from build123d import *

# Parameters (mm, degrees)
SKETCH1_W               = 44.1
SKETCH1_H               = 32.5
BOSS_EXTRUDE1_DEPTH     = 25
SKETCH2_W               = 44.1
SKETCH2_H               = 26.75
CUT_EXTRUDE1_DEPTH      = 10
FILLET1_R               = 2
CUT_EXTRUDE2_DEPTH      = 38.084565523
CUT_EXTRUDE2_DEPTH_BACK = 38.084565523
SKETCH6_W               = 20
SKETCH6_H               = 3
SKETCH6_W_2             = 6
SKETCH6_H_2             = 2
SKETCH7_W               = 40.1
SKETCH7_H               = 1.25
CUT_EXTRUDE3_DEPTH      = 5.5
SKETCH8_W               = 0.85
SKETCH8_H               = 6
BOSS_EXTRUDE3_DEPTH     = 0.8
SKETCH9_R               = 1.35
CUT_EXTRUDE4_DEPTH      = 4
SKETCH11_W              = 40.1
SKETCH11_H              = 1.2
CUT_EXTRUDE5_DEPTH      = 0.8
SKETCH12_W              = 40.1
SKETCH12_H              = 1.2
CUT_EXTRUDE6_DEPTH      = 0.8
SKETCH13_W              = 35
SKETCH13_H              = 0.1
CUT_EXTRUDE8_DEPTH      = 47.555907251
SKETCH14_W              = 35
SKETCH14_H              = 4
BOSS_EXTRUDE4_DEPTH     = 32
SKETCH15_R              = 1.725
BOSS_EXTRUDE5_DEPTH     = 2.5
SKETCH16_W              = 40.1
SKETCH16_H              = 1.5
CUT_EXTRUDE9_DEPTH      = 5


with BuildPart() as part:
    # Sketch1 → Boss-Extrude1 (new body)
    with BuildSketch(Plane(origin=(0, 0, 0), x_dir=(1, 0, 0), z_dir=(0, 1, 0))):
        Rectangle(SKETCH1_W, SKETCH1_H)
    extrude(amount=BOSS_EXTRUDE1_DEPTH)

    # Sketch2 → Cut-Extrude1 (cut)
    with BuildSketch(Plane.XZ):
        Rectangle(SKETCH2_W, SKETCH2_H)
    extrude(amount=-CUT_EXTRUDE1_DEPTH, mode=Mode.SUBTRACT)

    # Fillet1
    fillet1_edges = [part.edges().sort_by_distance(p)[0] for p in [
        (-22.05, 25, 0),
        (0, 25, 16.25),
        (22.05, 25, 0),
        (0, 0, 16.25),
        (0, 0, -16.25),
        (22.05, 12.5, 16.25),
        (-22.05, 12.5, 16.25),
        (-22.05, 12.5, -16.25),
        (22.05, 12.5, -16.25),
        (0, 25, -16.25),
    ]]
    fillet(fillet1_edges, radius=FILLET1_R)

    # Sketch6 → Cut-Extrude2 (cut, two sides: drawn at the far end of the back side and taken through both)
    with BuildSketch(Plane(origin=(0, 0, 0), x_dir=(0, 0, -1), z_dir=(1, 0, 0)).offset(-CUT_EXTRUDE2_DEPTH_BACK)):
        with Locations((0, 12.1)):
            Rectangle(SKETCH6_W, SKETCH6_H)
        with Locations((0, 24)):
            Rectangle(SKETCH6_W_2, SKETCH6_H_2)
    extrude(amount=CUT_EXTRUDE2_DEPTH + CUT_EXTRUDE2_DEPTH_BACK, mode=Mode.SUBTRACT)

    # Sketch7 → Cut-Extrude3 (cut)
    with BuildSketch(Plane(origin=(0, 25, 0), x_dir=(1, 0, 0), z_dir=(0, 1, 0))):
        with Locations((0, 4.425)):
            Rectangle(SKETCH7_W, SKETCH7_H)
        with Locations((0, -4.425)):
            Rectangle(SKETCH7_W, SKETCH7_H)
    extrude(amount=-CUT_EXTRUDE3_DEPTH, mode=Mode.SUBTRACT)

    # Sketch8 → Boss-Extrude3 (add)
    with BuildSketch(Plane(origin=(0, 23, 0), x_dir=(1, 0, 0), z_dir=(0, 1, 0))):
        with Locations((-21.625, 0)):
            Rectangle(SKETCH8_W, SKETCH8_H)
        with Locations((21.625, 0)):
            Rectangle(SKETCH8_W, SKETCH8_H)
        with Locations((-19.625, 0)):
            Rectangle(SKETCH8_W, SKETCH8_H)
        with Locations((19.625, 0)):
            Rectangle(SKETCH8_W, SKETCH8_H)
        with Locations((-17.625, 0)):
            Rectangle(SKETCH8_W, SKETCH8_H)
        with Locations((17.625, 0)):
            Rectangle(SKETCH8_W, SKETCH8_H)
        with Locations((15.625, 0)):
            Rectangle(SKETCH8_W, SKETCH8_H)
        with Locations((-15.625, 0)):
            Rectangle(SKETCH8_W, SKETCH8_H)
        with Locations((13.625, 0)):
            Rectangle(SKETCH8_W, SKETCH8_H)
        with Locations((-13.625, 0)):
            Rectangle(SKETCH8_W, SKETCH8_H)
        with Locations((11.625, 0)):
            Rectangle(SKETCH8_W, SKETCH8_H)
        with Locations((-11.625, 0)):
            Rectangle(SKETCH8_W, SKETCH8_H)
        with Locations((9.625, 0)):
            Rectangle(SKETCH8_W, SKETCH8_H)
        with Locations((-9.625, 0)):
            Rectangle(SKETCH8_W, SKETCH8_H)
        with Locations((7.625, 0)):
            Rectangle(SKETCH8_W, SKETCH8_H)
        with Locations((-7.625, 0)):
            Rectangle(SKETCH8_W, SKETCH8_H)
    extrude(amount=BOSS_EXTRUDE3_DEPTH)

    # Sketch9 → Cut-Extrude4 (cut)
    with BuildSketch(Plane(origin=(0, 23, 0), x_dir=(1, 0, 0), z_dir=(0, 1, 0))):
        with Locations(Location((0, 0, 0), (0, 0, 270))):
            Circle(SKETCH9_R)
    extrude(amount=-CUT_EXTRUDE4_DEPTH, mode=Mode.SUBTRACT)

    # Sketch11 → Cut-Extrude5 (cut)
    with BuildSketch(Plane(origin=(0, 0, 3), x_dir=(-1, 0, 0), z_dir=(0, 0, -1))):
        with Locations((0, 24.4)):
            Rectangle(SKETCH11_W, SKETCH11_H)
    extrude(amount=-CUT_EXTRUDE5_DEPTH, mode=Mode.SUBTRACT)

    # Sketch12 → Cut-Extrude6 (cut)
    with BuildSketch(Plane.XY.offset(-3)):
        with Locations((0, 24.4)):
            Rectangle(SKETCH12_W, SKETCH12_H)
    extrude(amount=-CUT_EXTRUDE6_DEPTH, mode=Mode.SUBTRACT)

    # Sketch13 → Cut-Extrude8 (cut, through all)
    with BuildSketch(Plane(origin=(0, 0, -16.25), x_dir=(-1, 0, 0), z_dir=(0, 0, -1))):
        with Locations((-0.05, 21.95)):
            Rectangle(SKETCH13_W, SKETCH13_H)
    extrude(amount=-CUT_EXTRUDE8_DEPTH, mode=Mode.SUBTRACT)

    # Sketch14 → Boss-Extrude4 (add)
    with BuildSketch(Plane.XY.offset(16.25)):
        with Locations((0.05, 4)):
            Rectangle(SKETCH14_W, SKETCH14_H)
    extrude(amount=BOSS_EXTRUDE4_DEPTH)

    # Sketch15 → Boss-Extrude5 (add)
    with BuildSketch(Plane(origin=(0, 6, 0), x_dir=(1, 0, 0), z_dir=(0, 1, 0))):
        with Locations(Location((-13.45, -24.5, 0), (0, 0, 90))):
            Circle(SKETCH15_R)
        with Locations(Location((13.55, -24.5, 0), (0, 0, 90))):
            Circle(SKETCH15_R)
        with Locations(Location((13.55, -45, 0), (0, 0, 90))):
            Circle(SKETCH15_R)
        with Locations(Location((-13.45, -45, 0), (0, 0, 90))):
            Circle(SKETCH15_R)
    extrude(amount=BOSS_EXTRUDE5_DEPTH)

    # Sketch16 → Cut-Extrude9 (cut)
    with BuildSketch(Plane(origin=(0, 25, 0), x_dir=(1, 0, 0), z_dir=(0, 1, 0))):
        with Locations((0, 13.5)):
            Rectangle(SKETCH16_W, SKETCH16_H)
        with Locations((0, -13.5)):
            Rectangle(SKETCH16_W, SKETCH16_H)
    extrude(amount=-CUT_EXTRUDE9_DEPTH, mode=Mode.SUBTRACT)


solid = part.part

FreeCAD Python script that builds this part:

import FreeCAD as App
import Part
import Sketcher

V = App.Vector


def edges_at(feature, points):
    """Names of the edges that pass closest to the given points."""
    edges = feature.Shape.Edges
    near = lambda p: min(range(len(edges)), key=lambda i: edges[i].distToShape(Part.Vertex(*p))[0])
    return sorted({f"Edge{near(p) + 1}" for p in points})


def add_polygon(sketch, points):
    """Adds a closed chain of lines whose ends are joined by coincident constraints."""
    first, n = sketch.GeometryCount, len(points)
    for a, b in zip(points, points[1:] + points[:1]):
        sketch.addGeometry(Part.LineSegment(App.Vector(*a, 0), App.Vector(*b, 0)), False)
    for i in range(n):
        sketch.addConstraint(Sketcher.Constraint("Coincident", first + i, 2, first + (i + 1) % n, 1))

doc = App.newDocument("Part")
params = doc.addObject("Spreadsheet::Sheet", "Params")
for row, (alias, value) in enumerate([
    ("sketch1_width", "44.1 mm"),
    ("sketch1_height", "32.5 mm"),
    ("pad1_length", "25 mm"),
    ("sketch2_width", "44.1 mm"),
    ("sketch2_height", "26.75 mm"),
    ("pocket1_length", "10 mm"),
    ("fillet_radius", "2 mm"),
    ("sketch3_width", "3 mm"),
    ("sketch3_width2", "2 mm"),
    ("sketch3_height", "20 mm"),
    ("sketch3_height2", "6 mm"),
    ("sketch4_width", "40.1 mm"),
    ("sketch4_height", "1.25 mm"),
    ("pocket3_length", "5.5 mm"),
    ("sketch5_height", "6 mm"),
    ("sketch5_width", "0.85 mm"),
    ("pad2_length", "0.8 mm"),
    ("sketch6_diameter", "2.7 mm"),
    ("pocket4_length", "4 mm"),
    ("sketch7_width", "40.1 mm"),
    ("sketch7_height", "1.2 mm"),
    ("pocket5_length", "0.8 mm"),
    ("sketch8_width", "40.1 mm"),
    ("sketch8_height", "1.2 mm"),
    ("pocket6_length", "0.8 mm"),
    ("sketch9_width", "35 mm"),
    ("sketch9_height", "0.1 mm"),
    ("sketch10_width", "35 mm"),
    ("sketch10_height", "4 mm"),
    ("pad3_length", "32 mm"),
    ("sketch11_diameter", "3.45 mm"),
    ("pad4_length", "2.5 mm"),
    ("sketch12_width", "40.1 mm"),
    ("sketch12_height", "1.5 mm"),
    ("pocket8_length", "5 mm"),
], start=1):
    params.set(f"A{row}", alias)
    params.set(f"B{row}", "=" + value)
    params.setAlias(f"B{row}", alias)

body = doc.addObject("PartDesign::Body", "Body")

sketch1 = doc.addObject("Sketcher::SketchObject", "Sketch")
body.addObject(sketch1)
sketch1.AttachmentSupport = (doc.XZ_Plane, [""])
sketch1.MapMode = "FlatFace"
add_polygon(sketch1, [(-22, -16), (-22, 16), (22, 16), (22, -16)])
sketch1.addConstraint(Sketcher.Constraint("Vertical", 0))
sketch1.addConstraint(Sketcher.Constraint("Horizontal", 1))
sketch1.addConstraint(Sketcher.Constraint("Vertical", 2))
sketch1.addConstraint(Sketcher.Constraint("Horizontal", 3))
sketch1.addConstraint(Sketcher.Constraint("Symmetric", 0, 2, 2, 2, -1, 1))
sketch1.addConstraint(Sketcher.Constraint("DistanceX", 1, 1, 1, 2, 44.1))
sketch1.addConstraint(Sketcher.Constraint("DistanceY", 0, 1, 0, 2, 32.5))
sketch1.setExpression("Constraints[9]", "Params.sketch1_width")
sketch1.setExpression("Constraints[10]", "Params.sketch1_height")
pad1 = doc.addObject("PartDesign::Pad", "Pad")
body.addObject(pad1)
pad1.Profile = sketch1
pad1.setExpression("Length", "Params.pad1_length")
pad1.Reversed = True

sketch2 = doc.addObject("Sketcher::SketchObject", "Sketch001")
body.addObject(sketch2)
sketch2.AttachmentSupport = (doc.XZ_Plane, [""])
sketch2.MapMode = "FlatFace"
add_polygon(sketch2, [(-22, 13), (-22, -13), (22, -13), (22, 13)])
sketch2.addConstraint(Sketcher.Constraint("Vertical", 0))
sketch2.addConstraint(Sketcher.Constraint("Horizontal", 1))
sketch2.addConstraint(Sketcher.Constraint("Vertical", 2))
sketch2.addConstraint(Sketcher.Constraint("Horizontal", 3))
sketch2.addConstraint(Sketcher.Constraint("Symmetric", 0, 2, 2, 2, -1, 1))
sketch2.addConstraint(Sketcher.Constraint("DistanceX", 1, 1, 1, 2, 44.1))
sketch2.addConstraint(Sketcher.Constraint("DistanceY", 0, 2, 0, 1, 26.75))
sketch2.setExpression("Constraints[9]", "Params.sketch2_width")
sketch2.setExpression("Constraints[10]", "Params.sketch2_height")
pocket1 = doc.addObject("PartDesign::Pocket", "Pocket")
body.addObject(pocket1)
pocket1.Profile = sketch2
pocket1.setExpression("Length", "Params.pocket1_length")
doc.recompute()

fillet = doc.addObject("PartDesign::Fillet", "Fillet")
body.addObject(fillet)
fillet.Base = (pocket1, edges_at(pocket1, [
    (-22.05, 25, 0),
    (0, 25, 16.25),
    (22.05, 25, 0),
    (0, 0, 16.25),
    (0, 0, -16.25),
    (22.05, 12.5, 16.25),
    (-22.05, 12.5, 16.25),
    (-22.05, 12.5, -16.25),
    (22.05, 12.5, -16.25),
    (0, 25, -16.25),
]))
fillet.setExpression("Radius", "Params.fillet_radius")

sketch3 = doc.addObject("Sketcher::SketchObject", "Sketch002")
body.addObject(sketch3)
sketch3.AttachmentSupport = (doc.YZ_Plane, [""])
sketch3.MapMode = "FlatFace"
add_polygon(sketch3, [(13.6, 10), (10.6, 10), (10.6, -10), (13.6, -10)])
add_polygon(sketch3, [(25, 3), (23, 3), (23, -3), (25, -3)])
sketch3.addConstraint(Sketcher.Constraint("Horizontal", 0))
sketch3.addConstraint(Sketcher.Constraint("Vertical", 1))
sketch3.addConstraint(Sketcher.Constraint("Horizontal", 2))
sketch3.addConstraint(Sketcher.Constraint("Vertical", 3))
sketch3.addConstraint(Sketcher.Constraint("Horizontal", 4))
sketch3.addConstraint(Sketcher.Constraint("Vertical", 5))
sketch3.addConstraint(Sketcher.Constraint("Horizontal", 6))
sketch3.addConstraint(Sketcher.Constraint("Vertical", 7))
sketch3.addConstraint(Sketcher.Constraint("DistanceX", 0, 2, 0, 1, 3.0))
sketch3.addConstraint(Sketcher.Constraint("DistanceX", 4, 2, 4, 1, 2.0))
sketch3.addConstraint(Sketcher.Constraint("DistanceY", 1, 2, 1, 1, 20.0))
sketch3.addConstraint(Sketcher.Constraint("DistanceY", 5, 2, 5, 1, 6.0))
sketch3.addConstraint(Sketcher.Constraint("DistanceY", -1, 1, 0, 2, 10.0))
sketch3.addConstraint(Sketcher.Constraint("DistanceX", -1, 1, 4, 2, 23.0))
sketch3.addConstraint(Sketcher.Constraint("DistanceY", -1, 1, 4, 2, 3.0))
sketch3.addConstraint(Sketcher.Constraint("DistanceX", -1, 1, 0, 2, 10.6))
sketch3.setExpression("Constraints[16]", "Params.sketch3_width")
sketch3.setExpression("Constraints[17]", "Params.sketch3_width2")
sketch3.setExpression("Constraints[18]", "Params.sketch3_height")
sketch3.setExpression("Constraints[19]", "Params.sketch3_height2")
pocket2 = doc.addObject("PartDesign::Pocket", "Pocket001")
body.addObject(pocket2)
pocket2.Profile = sketch3
pocket2.Type = "ThroughAll"
pocket2.Midplane = True

sketch4 = doc.addObject("Sketcher::SketchObject", "Sketch003")
body.addObject(sketch4)
sketch4.AttachmentSupport = (doc.XZ_Plane, [""])
sketch4.MapMode = "FlatFace"
sketch4.AttachmentOffset = App.Placement(V(0, 0, -25), App.Rotation())
add_polygon(sketch4, [(-20.1, -5), (-20.1, -3.8), (20.1, -3.8), (20.1, -5)])
add_polygon(sketch4, [(-20.1, 3.8), (-20.1, 5), (20.1, 5), (20.1, 3.8)])
sketch4.addConstraint(Sketcher.Constraint("Vertical", 0))
sketch4.addConstraint(Sketcher.Constraint("Horizontal", 1))
sketch4.addConstraint(Sketcher.Constraint("Vertical", 2))
sketch4.addConstraint(Sketcher.Constraint("Horizontal", 3))
sketch4.addConstraint(Sketcher.Constraint("Vertical", 4))
sketch4.addConstraint(Sketcher.Constraint("Horizontal", 5))
sketch4.addConstraint(Sketcher.Constraint("Vertical", 6))
sketch4.addConstraint(Sketcher.Constraint("Horizontal", 7))
sketch4.addConstraint(Sketcher.Constraint("Symmetric", 2, 2, 4, 2, -1, 1))
sketch4.addConstraint(Sketcher.Constraint("Symmetric", 0, 2, 6, 2, -1, 1))
sketch4.addConstraint(Sketcher.Constraint("Vertical", 3, 2, 4, 2))
sketch4.addConstraint(Sketcher.Constraint("DistanceX", 1, 1, 1, 2, 40.1))
sketch4.addConstraint(Sketcher.Constraint("DistanceY", 0, 1, 0, 2, 1.25))
sketch4.addConstraint(Sketcher.Constraint("DistanceY", 0, 2, -1, 1, 3.8))
sketch4.setExpression("Constraints[19]", "Params.sketch4_width")
sketch4.setExpression("Constraints[20]", "Params.sketch4_height")
pocket3 = doc.addObject("PartDesign::Pocket", "Pocket002")
body.addObject(pocket3)
pocket3.Profile = sketch4
pocket3.setExpression("Length", "Params.pocket3_length")
pocket3.Reversed = True

sketch5 = doc.addObject("Sketcher::SketchObject", "Sketch004")
body.addObject(sketch5)
sketch5.AttachmentSupport = (doc.XZ_Plane, [""])
sketch5.MapMode = "FlatFace"
sketch5.AttachmentOffset = App.Placement(V(0, 0, -23), App.Rotation())
add_polygon(sketch5, [(-22.1, -3), (-22.1, 3), (-21.2, 3), (-21.2, -3)])
add_polygon(sketch5, [(21.2, -3), (21.2, 3), (22.1, 3), (22.1, -3)])
add_polygon(sketch5, [(-20.1, -3), (-20.1, 3), (-19.2, 3), (-19.2, -3)])
add_polygon(sketch5, [(19.2, -3), (19.2, 3), (20.1, 3), (20.1, -3)])
add_polygon(sketch5, [(-18.1, -3), (-18.1, 3), (-17.2, 3), (-17.2, -3)])
add_polygon(sketch5, [(17.2, -3), (17.2, 3), (18.1, 3), (18.1, -3)])
add_polygon(sketch5, [(15.2, -3), (15.2, 3), (16.1, 3), (16.1, -3)])
add_polygon(sketch5, [(-16.1, -3), (-16.1, 3), (-15.2, 3), (-15.2, -3)])
add_polygon(sketch5, [(13.2, -3), (13.2, 3), (14.1, 3), (14.1, -3)])
add_polygon(sketch5, [(-14.1, -3), (-14.1, 3), (-13.2, 3), (-13.2, -3)])
add_polygon(sketch5, [(11.2, -3), (11.2, 3), (12.1, 3), (12.1, -3)])
add_polygon(sketch5, [(-12.1, -3), (-12.1, 3), (-11.2, 3), (-11.2, -3)])
add_polygon(sketch5, [(9.2, -3), (9.2, 3), (10.1, 3), (10.1, -3)])
add_polygon(sketch5, [(-10.1, -3), (-10.1, 3), (-9.2, 3), (-9.2, -3)])
add_polygon(sketch5, [(7.2, -3), (7.2, 3), (8.1, 3), (8.1, -3)])
add_polygon(sketch5, [(-8.1, -3), (-8.1, 3), (-7.2, 3), (-7.2, -3)])
sketch5.addConstraint(Sketcher.Constraint("Vertical", 0))
sketch5.addConstraint(Sketcher.Constraint("Horizontal", 1))
sketch5.addConstraint(Sketcher.Constraint("Vertical", 2))
sketch5.addConstraint(Sketcher.Constraint("Horizontal", 3))
sketch5.addConstraint(Sketcher.Constraint("Vertical", 4))
sketch5.addConstraint(Sketcher.Constraint("Horizontal", 5))
sketch5.addConstraint(Sketcher.Constraint("Vertical", 6))
sketch5.addConstraint(Sketcher.Constraint("Horizontal", 7))
sketch5.addConstraint(Sketcher.Constraint("Vertical", 8))
sketch5.addConstraint(Sketcher.Constraint("Horizontal", 9))
sketch5.addConstraint(Sketcher.Constraint("Vertical", 10))
sketch5.addConstraint(Sketcher.Constraint("Horizontal", 11))
sketch5.addConstraint(Sketcher.Constraint("Vertical", 12))
sketch5.addConstraint(Sketcher.Constraint("Horizontal", 13))
sketch5.addConstraint(Sketcher.Constraint("Vertical", 14))
sketch5.addConstraint(Sketcher.Constraint("Horizontal", 15))
sketch5.addConstraint(Sketcher.Constraint("Vertical", 16))
sketch5.addConstraint(Sketcher.Constraint("Horizontal", 17))
sketch5.addConstraint(Sketcher.Constraint("Vertical", 18))
sketch5.addConstraint(Sketcher.Constraint("Horizontal", 19))
sketch5.addConstraint(Sketcher.Constraint("Vertical", 20))
sketch5.addConstraint(Sketcher.Constraint("Horizontal", 21))
sketch5.addConstraint(Sketcher.Constraint("Vertical", 22))
sketch5.addConstraint(Sketcher.Constraint("Horizontal", 23))
sketch5.addConstraint(Sketcher.Constraint("Vertical", 24))
sketch5.addConstraint(Sketcher.Constraint("Horizontal", 25))
sketch5.addConstraint(Sketcher.Constraint("Vertical", 26))
sketch5.addConstraint(Sketcher.Constraint("Horizontal", 27))
sketch5.addConstraint(Sketcher.Constraint("Vertical", 28))
sketch5.addConstraint(Sketcher.Constraint("Horizontal", 29))
sketch5.addConstraint(Sketcher.Constraint("Vertical", 30))
sketch5.addConstraint(Sketcher.Constraint("Horizontal", 31))
sketch5.addConstraint(Sketcher.Constraint("Vertical", 32))
sketch5.addConstraint(Sketcher.Constraint("Horizontal", 33))
sketch5.addConstraint(Sketcher.Constraint("Vertical", 34))
sketch5.addConstraint(Sketcher.Constraint("Horizontal", 35))
sketch5.addConstraint(Sketcher.Constraint("Vertical", 36))
sketch5.addConstraint(Sketcher.Constraint("Horizontal", 37))
sketch5.addConstraint(Sketcher.Constraint("Vertical", 38))
sketch5.addConstraint(Sketcher.Constraint("Horizontal", 39))
sketch5.addConstraint(Sketcher.Constraint("Vertical", 40))
sketch5.addConstraint(Sketcher.Constraint("Horizontal", 41))
sketch5.addConstraint(Sketcher.Constraint("Vertical", 42))
sketch5.addConstraint(Sketcher.Constraint("Horizontal", 43))
sketch5.addConstraint(Sketcher.Constraint("Vertical", 44))
sketch5.addConstraint(Sketcher.Constraint("Horizontal", 45))
sketch5.addConstraint(Sketcher.Constraint("Vertical", 46))
sketch5.addConstraint(Sketcher.Constraint("Horizontal", 47))
sketch5.addConstraint(Sketcher.Constraint("Vertical", 48))
sketch5.addConstraint(Sketcher.Constraint("Horizontal", 49))
sketch5.addConstraint(Sketcher.Constraint("Vertical", 50))
sketch5.addConstraint(Sketcher.Constraint("Horizontal", 51))
sketch5.addConstraint(Sketcher.Constraint("Vertical", 52))
sketch5.addConstraint(Sketcher.Constraint("Horizontal", 53))
sketch5.addConstraint(Sketcher.Constraint("Vertical", 54))
sketch5.addConstraint(Sketcher.Constraint("Horizontal", 55))
sketch5.addConstraint(Sketcher.Constraint("Vertical", 56))
sketch5.addConstraint(Sketcher.Constraint("Horizontal", 57))
sketch5.addConstraint(Sketcher.Constraint("Vertical", 58))
sketch5.addConstraint(Sketcher.Constraint("Horizontal", 59))
sketch5.addConstraint(Sketcher.Constraint("Vertical", 60))
sketch5.addConstraint(Sketcher.Constraint("Horizontal", 61))
sketch5.addConstraint(Sketcher.Constraint("Vertical", 62))
sketch5.addConstraint(Sketcher.Constraint("Horizontal", 63))
sketch5.addConstraint(Sketcher.Constraint("Symmetric", 2, 2, 4, 2, -1, 1))
sketch5.addConstraint(Sketcher.Constraint("Symmetric", 0, 2, 6, 2, -1, 1))
sketch5.addConstraint(Sketcher.Constraint("Symmetric", 10, 2, 12, 2, -1, 1))
sketch5.addConstraint(Sketcher.Constraint("Symmetric", 8, 2, 14, 2, -1, 1))
sketch5.addConstraint(Sketcher.Constraint("Symmetric", 18, 2, 20, 2, -1, 1))
sketch5.addConstraint(Sketcher.Constraint("Symmetric", 16, 2, 22, 2, -1, 1))
sketch5.addConstraint(Sketcher.Constraint("Symmetric", 26, 2, 28, 2, -1, 1))
sketch5.addConstraint(Sketcher.Constraint("Symmetric", 24, 2, 30, 2, -1, 1))
sketch5.addConstraint(Sketcher.Constraint("Symmetric", 34, 2, 36, 2, -1, 1))
sketch5.addConstraint(Sketcher.Constraint("Symmetric", 32, 2, 38, 2, -1, 1))
sketch5.addConstraint(Sketcher.Constraint("Symmetric", 42, 2, 44, 2, -1, 1))
sketch5.addConstraint(Sketcher.Constraint("Symmetric", 40, 2, 46, 2, -1, 1))
sketch5.addConstraint(Sketcher.Constraint("Symmetric", 50, 2, 52, 2, -1, 1))
sketch5.addConstraint(Sketcher.Constraint("Symmetric", 48, 2, 54, 2, -1, 1))
sketch5.addConstraint(Sketcher.Constraint("Symmetric", 58, 2, 60, 2, -1, 1))
sketch5.addConstraint(Sketcher.Constraint("Symmetric", 56, 2, 62, 2, -1, 1))
sketch5.addConstraint(Sketcher.Constraint("Horizontal", 1, 2, 4, 2))
sketch5.addConstraint(Sketcher.Constraint("Horizontal", 5, 2, 8, 2))
sketch5.addConstraint(Sketcher.Constraint("Horizontal", 7, 2, 10, 2))
sketch5.addConstraint(Sketcher.Constraint("Horizontal", 13, 2, 16, 2))
sketch5.addConstraint(Sketcher.Constraint("Horizontal", 15, 2, 18, 2))
sketch5.addConstraint(Sketcher.Constraint("Horizontal", 21, 2, 24, 2))
sketch5.addConstraint(Sketcher.Constraint("Horizontal", 23, 2, 26, 2))
sketch5.addConstraint(Sketcher.Constraint("Horizontal", 29, 2, 32, 2))
sketch5.addConstraint(Sketcher.Constraint("Horizontal", 31, 2, 34, 2))
sketch5.addConstraint(Sketcher.Constraint("Horizontal", 37, 2, 40, 2))
sketch5.addConstraint(Sketcher.Constraint("Horizontal", 39, 2, 42, 2))
sketch5.addConstraint(Sketcher.Constraint("Horizontal", 45, 2, 48, 2))
sketch5.addConstraint(Sketcher.Constraint("Horizontal", 47, 2, 50, 2))
sketch5.addConstraint(Sketcher.Constraint("Horizontal", 53, 2, 56, 2))
sketch5.addConstraint(Sketcher.Constraint("Horizontal", 55, 2, 58, 2))
sketch5.addConstraint(Sketcher.Constraint("Equal", 7, 9))
sketch5.addConstraint(Sketcher.Constraint("Equal", 15, 17))
sketch5.addConstraint(Sketcher.Constraint("Equal", 23, 25))
sketch5.addConstraint(Sketcher.Constraint("Equal", 31, 33))
sketch5.addConstraint(Sketcher.Constraint("Equal", 39, 41))
sketch5.addConstraint(Sketcher.Constraint("Equal", 47, 49))
sketch5.addConstraint(Sketcher.Constraint("Equal", 55, 57))
sketch5.addConstraint(Sketcher.Constraint("DistanceY", 0, 1, 0, 2, 6.0))
sketch5.addConstraint(Sketcher.Constraint("DistanceX", 1, 1, 1, 2, 0.85))
sketch5.addConstraint(Sketcher.Constraint("DistanceX", 1, 2, -1, 1, 21.2))
sketch5.addConstraint(Sketcher.Constraint("DistanceX", 9, 2, -1, 1, 19.2))
sketch5.addConstraint(Sketcher.Constraint("DistanceX", 17, 2, -1, 1, 17.2))
sketch5.addConstraint(Sketcher.Constraint("DistanceX", -1, 1, 24, 2, 15.2))
sketch5.addConstraint(Sketcher.Constraint("DistanceX", -1, 1, 32, 2, 13.2))
sketch5.addConstraint(Sketcher.Constraint("DistanceX", -1, 1, 40, 2, 11.2))
sketch5.addConstraint(Sketcher.Constraint("DistanceX", -1, 1, 48, 2, 9.2))
sketch5.addConstraint(Sketcher.Constraint("DistanceX", -1, 1, 56, 2, 7.2))
sketch5.setExpression("Constraints[166]", "Params.sketch5_height")
sketch5.setExpression("Constraints[167]", "Params.sketch5_width")
pad2 = doc.addObject("PartDesign::Pad", "Pad001")
body.addObject(pad2)
pad2.Profile = sketch5
pad2.setExpression("Length", "Params.pad2_length")
pad2.Reversed = True

sketch6 = doc.addObject("Sketcher::SketchObject", "Sketch005")
body.addObject(sketch6)
sketch6.AttachmentSupport = (doc.XZ_Plane, [""])
sketch6.MapMode = "FlatFace"
sketch6.AttachmentOffset = App.Placement(V(0, 0, -23), App.Rotation())
sketch6.addGeometry(Part.Circle(V(0, 0, 0), V(0, 0, 1), 1.4), False)
sketch6.addConstraint(Sketcher.Constraint("Coincident", 0, 3, -1, 1))
sketch6.addConstraint(Sketcher.Constraint("Diameter", 0, 2.7))
sketch6.setExpression("Constraints[1]", "Params.sketch6_diameter")
pocket4 = doc.addObject("PartDesign::Pocket", "Pocket003")
body.addObject(pocket4)
pocket4.Profile = sketch6
pocket4.setExpression("Length", "Params.pocket4_length")
pocket4.Reversed = True

sketch7 = doc.addObject("Sketcher::SketchObject", "Sketch006")
body.addObject(sketch7)
sketch7.AttachmentSupport = (doc.XY_Plane, [""])
sketch7.MapMode = "FlatFace"
sketch7.AttachmentOffset = App.Placement(V(0, 0, 3), App.Rotation())
add_polygon(sketch7, [(20.1, 25), (20.1, 23.8), (-20.1, 23.8), (-20.1, 25)])
sketch7.addConstraint(Sketcher.Constraint("Vertical", 0))
sketch7.addConstraint(Sketcher.Constraint("Horizontal", 1))
sketch7.addConstraint(Sketcher.Constraint("Vertical", 2))
sketch7.addConstraint(Sketcher.Constraint("Horizontal", 3))
sketch7.addConstraint(Sketcher.Constraint("DistanceX", 1, 2, 1, 1, 40.1))
sketch7.addConstraint(Sketcher.Constraint("DistanceY", 0, 2, 0, 1, 1.2))
sketch7.addConstraint(Sketcher.Constraint("DistanceY", -1, 1, 2, 2, 25.0))
sketch7.addConstraint(Sketcher.Constraint("DistanceX", -1, 1, 0, 2, 20.05))
sketch7.setExpression("Constraints[8]", "Params.sketch7_width")
sketch7.setExpression("Constraints[9]", "Params.sketch7_height")
pocket5 = doc.addObject("PartDesign::Pocket", "Pocket004")
body.addObject(pocket5)
pocket5.Profile = sketch7
pocket5.setExpression("Length", "Params.pocket5_length")
pocket5.Reversed = True

sketch8 = doc.addObject("Sketcher::SketchObject", "Sketch007")
body.addObject(sketch8)
sketch8.AttachmentSupport = (doc.XY_Plane, [""])
sketch8.MapMode = "FlatFace"
sketch8.AttachmentOffset = App.Placement(V(0, 0, -3), App.Rotation())
add_polygon(sketch8, [(-20.1, 25), (-20.1, 23.8), (20.1, 23.8), (20.1, 25)])
sketch8.addConstraint(Sketcher.Constraint("Vertical", 0))
sketch8.addConstraint(Sketcher.Constraint("Horizontal", 1))
sketch8.addConstraint(Sketcher.Constraint("Vertical", 2))
sketch8.addConstraint(Sketcher.Constraint("Horizontal", 3))
sketch8.addConstraint(Sketcher.Constraint("DistanceX", 1, 1, 1, 2, 40.1))
sketch8.addConstraint(Sketcher.Constraint("DistanceY", 0, 2, 0, 1, 1.2))
sketch8.addConstraint(Sketcher.Constraint("DistanceY", -1, 1, 2, 2, 25.0))
sketch8.addConstraint(Sketcher.Constraint("DistanceX", 0, 2, -1, 1, 20.05))
sketch8.setExpression("Constraints[8]", "Params.sketch8_width")
sketch8.setExpression("Constraints[9]", "Params.sketch8_height")
pocket6 = doc.addObject("PartDesign::Pocket", "Pocket005")
body.addObject(pocket6)
pocket6.Profile = sketch8
pocket6.setExpression("Length", "Params.pocket6_length")

sketch9 = doc.addObject("Sketcher::SketchObject", "Sketch008")
body.addObject(sketch9)
sketch9.AttachmentSupport = (doc.XY_Plane, [""])
sketch9.MapMode = "FlatFace"
sketch9.AttachmentOffset = App.Placement(V(0, 0, -16.25), App.Rotation())
add_polygon(sketch9, [(17.55, 22), (17.55, 21.9), (-17.45, 21.9), (-17.45, 22)])
sketch9.addConstraint(Sketcher.Constraint("Vertical", 0))
sketch9.addConstraint(Sketcher.Constraint("Horizontal", 1))
sketch9.addConstraint(Sketcher.Constraint("Vertical", 2))
sketch9.addConstraint(Sketcher.Constraint("Horizontal", 3))
sketch9.addConstraint(Sketcher.Constraint("DistanceX", 1, 2, 1, 1, 35.0))
sketch9.addConstraint(Sketcher.Constraint("DistanceY", 0, 2, 0, 1, 0.1))
sketch9.addConstraint(Sketcher.Constraint("DistanceY", -1, 1, 2, 2, 22.0))
sketch9.addConstraint(Sketcher.Constraint("DistanceX", -1, 1, 0, 2, 17.55))
sketch9.setExpression("Constraints[8]", "Params.sketch9_width")
sketch9.setExpression("Constraints[9]", "Params.sketch9_height")
pocket7 = doc.addObject("PartDesign::Pocket", "Pocket006")
body.addObject(pocket7)
pocket7.Profile = sketch9
pocket7.Type = "ThroughAll"
pocket7.Reversed = True

sketch10 = doc.addObject("Sketcher::SketchObject", "Sketch009")
body.addObject(sketch10)
sketch10.AttachmentSupport = (doc.XY_Plane, [""])
sketch10.MapMode = "FlatFace"
sketch10.AttachmentOffset = App.Placement(V(0, 0, 16.25), App.Rotation())
add_polygon(sketch10, [(-17.4, 6), (-17.4, 2), (17.6, 2), (17.6, 6)])
sketch10.addConstraint(Sketcher.Constraint("Vertical", 0))
sketch10.addConstraint(Sketcher.Constraint("Horizontal", 1))
sketch10.addConstraint(Sketcher.Constraint("Vertical", 2))
sketch10.addConstraint(Sketcher.Constraint("Horizontal", 3))
sketch10.addConstraint(Sketcher.Constraint("DistanceX", 1, 1, 1, 2, 35.0))
sketch10.addConstraint(Sketcher.Constraint("DistanceY", 0, 2, 0, 1, 4.0))
sketch10.addConstraint(Sketcher.Constraint("DistanceY", -1, 1, 0, 2, 2.0))
sketch10.addConstraint(Sketcher.Constraint("DistanceX", 0, 2, -1, 1, 17.45))
sketch10.setExpression("Constraints[8]", "Params.sketch10_width")
sketch10.setExpression("Constraints[9]", "Params.sketch10_height")
pad3 = doc.addObject("PartDesign::Pad", "Pad002")
body.addObject(pad3)
pad3.Profile = sketch10
pad3.setExpression("Length", "Params.pad3_length")

sketch11 = doc.addObject("Sketcher::SketchObject", "Sketch010")
body.addObject(sketch11)
sketch11.AttachmentSupport = (doc.XZ_Plane, [""])
sketch11.MapMode = "FlatFace"
sketch11.AttachmentOffset = App.Placement(V(0, 0, -6), App.Rotation())
sketch11.addGeometry(Part.Circle(V(-13.4, 24.5, 0), V(0, 0, 1), 1.7), False)
sketch11.addGeometry(Part.Circle(V(13.6, 24.5, 0), V(0, 0, 1), 1.7), False)
sketch11.addGeometry(Part.Circle(V(13.6, 45, 0), V(0, 0, 1), 1.7), False)
sketch11.addGeometry(Part.Circle(V(-13.4, 45, 0), V(0, 0, 1), 1.7), False)
sketch11.addConstraint(Sketcher.Constraint("Equal", 0, 1))
sketch11.addConstraint(Sketcher.Constraint("Equal", 1, 2))
sketch11.addConstraint(Sketcher.Constraint("Equal", 2, 3))
sketch11.addConstraint(Sketcher.Constraint("Horizontal", 0, 3, 1, 3))
sketch11.addConstraint(Sketcher.Constraint("Horizontal", 2, 3, 3, 3))
sketch11.addConstraint(Sketcher.Constraint("Vertical", 1, 3, 2, 3))
sketch11.addConstraint(Sketcher.Constraint("Vertical", 0, 3, 3, 3))
sketch11.addConstraint(Sketcher.Constraint("Diameter", 0, 3.45))
sketch11.addConstraint(Sketcher.Constraint("DistanceY", -1, 1, 2, 3, 45.0))
sketch11.addConstraint(Sketcher.Constraint("DistanceX", 0, 3, 1, 3, 27.0))
sketch11.addConstraint(Sketcher.Constraint("DistanceY", -1, 1, 0, 3, 24.5))
sketch11.addConstraint(Sketcher.Constraint("DistanceX", 0, 3, -1, 1, 13.45))
sketch11.setExpression("Constraints[7]", "Params.sketch11_diameter")
pad4 = doc.addObject("PartDesign::Pad", "Pad003")
body.addObject(pad4)
pad4.Profile = sketch11
pad4.setExpression("Length", "Params.pad4_length")
pad4.Reversed = True

sketch12 = doc.addObject("Sketcher::SketchObject", "Sketch011")
body.addObject(sketch12)
sketch12.AttachmentSupport = (doc.XZ_Plane, [""])
sketch12.MapMode = "FlatFace"
sketch12.AttachmentOffset = App.Placement(V(0, 0, -25), App.Rotation())
add_polygon(sketch12, [(-20.1, -14.2), (-20.1, -12.8), (20.1, -12.8), (20.1, -14.2)])
add_polygon(sketch12, [(-20.1, 12.8), (-20.1, 14.2), (20.1, 14.2), (20.1, 12.8)])
sketch12.addConstraint(Sketcher.Constraint("Vertical", 0))
sketch12.addConstraint(Sketcher.Constraint("Horizontal", 1))
sketch12.addConstraint(Sketcher.Constraint("Vertical", 2))
sketch12.addConstraint(Sketcher.Constraint("Horizontal", 3))
sketch12.addConstraint(Sketcher.Constraint("Vertical", 4))
sketch12.addConstraint(Sketcher.Constraint("Horizontal", 5))
sketch12.addConstraint(Sketcher.Constraint("Vertical", 6))
sketch12.addConstraint(Sketcher.Constraint("Horizontal", 7))
sketch12.addConstraint(Sketcher.Constraint("Symmetric", 2, 2, 4, 2, -1, 1))
sketch12.addConstraint(Sketcher.Constraint("Symmetric", 0, 2, 6, 2, -1, 1))
sketch12.addConstraint(Sketcher.Constraint("Vertical", 3, 2, 4, 2))
sketch12.addConstraint(Sketcher.Constraint("DistanceX", 1, 1, 1, 2, 40.1))
sketch12.addConstraint(Sketcher.Constraint("DistanceY", 0, 1, 0, 2, 1.5))
sketch12.addConstraint(Sketcher.Constraint("DistanceY", 0, 2, 4, 2, 27.0))
sketch12.setExpression("Constraints[19]", "Params.sketch12_width")
sketch12.setExpression("Constraints[20]", "Params.sketch12_height")
pocket8 = doc.addObject("PartDesign::Pocket", "Pocket007")
body.addObject(pocket8)
pocket8.Profile = sketch12
pocket8.setExpression("Length", "Params.pocket8_length")
pocket8.Reversed = True

doc.recompute()
